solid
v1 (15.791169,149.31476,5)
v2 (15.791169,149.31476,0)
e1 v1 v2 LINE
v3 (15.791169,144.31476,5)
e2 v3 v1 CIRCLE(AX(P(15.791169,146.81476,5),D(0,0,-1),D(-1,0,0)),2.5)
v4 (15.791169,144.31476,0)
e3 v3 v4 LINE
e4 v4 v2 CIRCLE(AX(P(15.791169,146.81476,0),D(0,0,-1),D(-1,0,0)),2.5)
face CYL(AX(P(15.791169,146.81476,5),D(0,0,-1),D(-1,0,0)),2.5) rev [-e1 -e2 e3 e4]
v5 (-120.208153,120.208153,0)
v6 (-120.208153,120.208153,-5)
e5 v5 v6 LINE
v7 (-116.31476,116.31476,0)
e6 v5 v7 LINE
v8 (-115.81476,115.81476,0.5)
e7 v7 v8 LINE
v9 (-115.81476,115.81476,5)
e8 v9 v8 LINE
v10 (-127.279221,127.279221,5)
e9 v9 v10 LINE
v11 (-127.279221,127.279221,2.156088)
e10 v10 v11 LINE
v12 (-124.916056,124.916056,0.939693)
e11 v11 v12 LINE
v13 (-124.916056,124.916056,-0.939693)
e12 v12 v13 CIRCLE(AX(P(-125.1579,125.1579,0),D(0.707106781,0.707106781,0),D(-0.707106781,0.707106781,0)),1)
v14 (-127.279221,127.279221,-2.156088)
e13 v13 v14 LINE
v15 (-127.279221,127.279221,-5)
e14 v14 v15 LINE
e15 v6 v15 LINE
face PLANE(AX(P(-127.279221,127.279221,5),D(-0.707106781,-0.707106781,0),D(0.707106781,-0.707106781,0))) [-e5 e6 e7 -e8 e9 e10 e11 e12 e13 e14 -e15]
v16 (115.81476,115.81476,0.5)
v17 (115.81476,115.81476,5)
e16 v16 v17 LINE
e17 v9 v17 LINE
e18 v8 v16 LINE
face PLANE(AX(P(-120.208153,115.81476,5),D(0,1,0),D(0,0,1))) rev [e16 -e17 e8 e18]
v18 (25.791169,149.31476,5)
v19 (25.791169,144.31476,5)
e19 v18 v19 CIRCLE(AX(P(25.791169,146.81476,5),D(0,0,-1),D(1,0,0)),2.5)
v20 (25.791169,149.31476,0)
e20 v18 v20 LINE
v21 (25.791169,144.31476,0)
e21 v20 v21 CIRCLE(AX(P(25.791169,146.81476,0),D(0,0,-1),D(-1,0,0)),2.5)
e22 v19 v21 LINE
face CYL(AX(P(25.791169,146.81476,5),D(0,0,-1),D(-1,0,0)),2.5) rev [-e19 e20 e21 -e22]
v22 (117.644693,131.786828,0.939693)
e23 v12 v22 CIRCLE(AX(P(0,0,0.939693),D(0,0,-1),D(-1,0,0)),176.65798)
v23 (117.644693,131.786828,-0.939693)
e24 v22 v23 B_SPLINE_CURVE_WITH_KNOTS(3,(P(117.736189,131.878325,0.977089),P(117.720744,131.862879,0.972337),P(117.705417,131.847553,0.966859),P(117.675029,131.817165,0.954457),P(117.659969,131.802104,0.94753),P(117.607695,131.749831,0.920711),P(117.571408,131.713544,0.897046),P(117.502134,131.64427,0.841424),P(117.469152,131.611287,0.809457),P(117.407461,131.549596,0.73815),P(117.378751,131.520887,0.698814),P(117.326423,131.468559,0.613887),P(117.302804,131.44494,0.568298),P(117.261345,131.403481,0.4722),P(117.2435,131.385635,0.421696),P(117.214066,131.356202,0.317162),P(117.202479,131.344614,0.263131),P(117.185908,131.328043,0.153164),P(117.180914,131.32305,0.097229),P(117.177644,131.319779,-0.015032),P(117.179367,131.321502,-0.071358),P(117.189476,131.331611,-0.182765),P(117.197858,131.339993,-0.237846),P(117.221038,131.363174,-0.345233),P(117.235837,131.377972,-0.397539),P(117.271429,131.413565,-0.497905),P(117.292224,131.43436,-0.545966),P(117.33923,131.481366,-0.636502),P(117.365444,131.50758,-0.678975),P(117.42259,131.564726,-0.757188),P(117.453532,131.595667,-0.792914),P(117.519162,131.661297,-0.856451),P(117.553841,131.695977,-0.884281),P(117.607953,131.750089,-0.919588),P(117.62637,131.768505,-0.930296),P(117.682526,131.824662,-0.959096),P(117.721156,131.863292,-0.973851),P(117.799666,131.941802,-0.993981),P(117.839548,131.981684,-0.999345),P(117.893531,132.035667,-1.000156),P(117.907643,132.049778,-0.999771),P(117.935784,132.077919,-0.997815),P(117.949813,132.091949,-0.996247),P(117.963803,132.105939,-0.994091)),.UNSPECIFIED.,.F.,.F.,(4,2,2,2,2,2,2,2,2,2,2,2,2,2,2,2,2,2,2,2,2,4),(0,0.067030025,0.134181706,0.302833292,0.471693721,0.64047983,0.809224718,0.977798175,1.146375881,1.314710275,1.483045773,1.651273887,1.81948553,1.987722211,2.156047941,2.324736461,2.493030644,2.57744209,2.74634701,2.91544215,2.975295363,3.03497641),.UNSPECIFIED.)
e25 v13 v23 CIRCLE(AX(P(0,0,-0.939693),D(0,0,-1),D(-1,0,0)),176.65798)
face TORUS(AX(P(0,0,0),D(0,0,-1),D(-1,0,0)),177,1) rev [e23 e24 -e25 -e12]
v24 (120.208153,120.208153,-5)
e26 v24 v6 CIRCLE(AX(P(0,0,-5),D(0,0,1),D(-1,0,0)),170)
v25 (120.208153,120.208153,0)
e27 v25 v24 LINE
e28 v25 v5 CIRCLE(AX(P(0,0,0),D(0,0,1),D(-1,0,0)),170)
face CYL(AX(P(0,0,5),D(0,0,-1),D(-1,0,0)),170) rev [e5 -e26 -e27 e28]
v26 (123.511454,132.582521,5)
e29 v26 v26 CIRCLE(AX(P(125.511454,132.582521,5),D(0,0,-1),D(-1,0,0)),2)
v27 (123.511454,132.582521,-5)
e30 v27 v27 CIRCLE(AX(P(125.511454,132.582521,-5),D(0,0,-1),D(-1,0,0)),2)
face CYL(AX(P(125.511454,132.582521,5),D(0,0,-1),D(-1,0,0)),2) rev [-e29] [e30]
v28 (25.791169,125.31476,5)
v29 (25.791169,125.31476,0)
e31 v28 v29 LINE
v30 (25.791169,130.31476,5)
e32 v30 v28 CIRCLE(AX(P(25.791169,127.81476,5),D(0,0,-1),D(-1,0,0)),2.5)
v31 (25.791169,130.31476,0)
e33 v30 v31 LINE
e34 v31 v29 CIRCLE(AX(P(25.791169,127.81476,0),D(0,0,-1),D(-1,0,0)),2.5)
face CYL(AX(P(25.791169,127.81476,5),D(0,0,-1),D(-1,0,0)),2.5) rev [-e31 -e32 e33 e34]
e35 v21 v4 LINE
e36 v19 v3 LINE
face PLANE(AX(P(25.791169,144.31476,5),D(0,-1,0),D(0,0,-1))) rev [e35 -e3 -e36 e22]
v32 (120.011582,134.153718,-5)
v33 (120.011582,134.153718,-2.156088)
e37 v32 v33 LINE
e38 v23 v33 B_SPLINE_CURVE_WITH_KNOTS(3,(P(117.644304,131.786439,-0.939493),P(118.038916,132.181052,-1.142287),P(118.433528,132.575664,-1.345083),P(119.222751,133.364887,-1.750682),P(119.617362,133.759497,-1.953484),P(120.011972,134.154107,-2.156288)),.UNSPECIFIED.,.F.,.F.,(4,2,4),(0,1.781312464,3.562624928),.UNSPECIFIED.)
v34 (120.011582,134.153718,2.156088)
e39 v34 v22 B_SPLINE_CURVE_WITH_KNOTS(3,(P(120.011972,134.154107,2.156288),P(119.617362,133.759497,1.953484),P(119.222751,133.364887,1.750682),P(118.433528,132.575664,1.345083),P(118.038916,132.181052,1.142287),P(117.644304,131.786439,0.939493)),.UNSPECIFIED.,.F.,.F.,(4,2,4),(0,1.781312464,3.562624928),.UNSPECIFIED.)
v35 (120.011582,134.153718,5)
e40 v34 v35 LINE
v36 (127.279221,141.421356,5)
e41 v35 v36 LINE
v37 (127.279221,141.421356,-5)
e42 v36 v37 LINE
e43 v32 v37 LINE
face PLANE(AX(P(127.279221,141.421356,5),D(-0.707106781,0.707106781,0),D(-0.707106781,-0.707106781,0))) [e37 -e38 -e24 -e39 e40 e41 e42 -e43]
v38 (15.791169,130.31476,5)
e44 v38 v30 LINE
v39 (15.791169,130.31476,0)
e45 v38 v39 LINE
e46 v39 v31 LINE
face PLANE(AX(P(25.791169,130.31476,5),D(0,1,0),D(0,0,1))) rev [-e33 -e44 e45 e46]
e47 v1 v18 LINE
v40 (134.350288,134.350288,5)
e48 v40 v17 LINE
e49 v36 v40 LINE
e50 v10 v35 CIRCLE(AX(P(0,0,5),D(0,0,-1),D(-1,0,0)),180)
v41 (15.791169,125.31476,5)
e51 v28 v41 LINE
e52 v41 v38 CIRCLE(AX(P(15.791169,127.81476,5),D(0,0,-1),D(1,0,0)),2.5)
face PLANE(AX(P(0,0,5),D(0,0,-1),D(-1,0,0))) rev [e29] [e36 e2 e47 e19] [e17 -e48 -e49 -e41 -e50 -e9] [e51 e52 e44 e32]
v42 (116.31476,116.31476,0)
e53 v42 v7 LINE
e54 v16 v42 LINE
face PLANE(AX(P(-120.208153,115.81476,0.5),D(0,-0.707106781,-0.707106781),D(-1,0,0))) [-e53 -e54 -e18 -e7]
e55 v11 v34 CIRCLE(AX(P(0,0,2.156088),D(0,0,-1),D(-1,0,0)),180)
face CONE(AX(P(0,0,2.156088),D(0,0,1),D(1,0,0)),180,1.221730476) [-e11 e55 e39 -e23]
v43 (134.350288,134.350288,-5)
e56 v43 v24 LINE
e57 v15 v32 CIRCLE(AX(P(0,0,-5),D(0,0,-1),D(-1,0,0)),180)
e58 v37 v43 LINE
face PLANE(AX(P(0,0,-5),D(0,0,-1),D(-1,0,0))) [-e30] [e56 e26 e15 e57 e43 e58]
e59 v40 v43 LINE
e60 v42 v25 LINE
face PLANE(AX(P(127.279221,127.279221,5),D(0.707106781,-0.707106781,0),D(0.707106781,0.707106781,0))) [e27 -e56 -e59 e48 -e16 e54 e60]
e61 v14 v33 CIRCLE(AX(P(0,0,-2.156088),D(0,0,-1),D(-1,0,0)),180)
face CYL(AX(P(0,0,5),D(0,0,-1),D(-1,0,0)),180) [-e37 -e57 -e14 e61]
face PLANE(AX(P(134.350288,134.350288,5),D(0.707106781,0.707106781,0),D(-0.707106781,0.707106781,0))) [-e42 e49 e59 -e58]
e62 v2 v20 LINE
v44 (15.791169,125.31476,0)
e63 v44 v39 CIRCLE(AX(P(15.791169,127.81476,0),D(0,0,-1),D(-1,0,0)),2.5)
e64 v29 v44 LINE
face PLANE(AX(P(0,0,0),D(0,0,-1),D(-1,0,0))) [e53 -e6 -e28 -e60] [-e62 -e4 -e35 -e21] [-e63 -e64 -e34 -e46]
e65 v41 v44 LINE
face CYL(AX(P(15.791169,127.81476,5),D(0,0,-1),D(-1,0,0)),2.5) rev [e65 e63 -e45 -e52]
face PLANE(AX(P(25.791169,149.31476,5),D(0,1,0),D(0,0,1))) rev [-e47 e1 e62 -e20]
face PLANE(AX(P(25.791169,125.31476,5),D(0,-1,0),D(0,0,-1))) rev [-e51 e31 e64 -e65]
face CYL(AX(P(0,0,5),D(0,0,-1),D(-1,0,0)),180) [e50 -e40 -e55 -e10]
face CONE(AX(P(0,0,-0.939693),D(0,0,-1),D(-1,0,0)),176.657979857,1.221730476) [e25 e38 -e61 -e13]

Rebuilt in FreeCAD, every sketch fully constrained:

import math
import FreeCAD as App
import Part
import Sketcher
Q = App.Units.Quantity


def edges_at(feature, points):
    """Names of the edges that pass closest to the given points."""
    edges = feature.Shape.Edges
    near = lambda p: min(range(len(edges)), key=lambda i: edges[i].distToShape(Part.Vertex(*p))[0])
    return sorted({f"Edge{near(p) + 1}" for p in points})

doc = App.newDocument("Part")
body = doc.addObject("PartDesign::Body", "Body")

sketch1 = doc.addObject("Sketcher::SketchObject", "Sketch")
body.addObject(sketch1)
sketch1.AttachmentSupport = (doc.XY_Plane, [""])
sketch1.MapMode = "FlatFace"
sketch1.addGeometry([
    Part.LineSegment(App.Vector(-120.2, 115.8, 0), App.Vector(120.2, 115.8, 0)),
    Part.LineSegment(App.Vector(120.2, 115.8, 0), App.Vector(120.2, 120.2, 0)),
    Part.ArcOfCircle(Part.Circle(App.Vector(0, 0, 0), App.Vector(0, 0, 1), 170), math.radians(45), math.radians(135)),
    Part.LineSegment(App.Vector(-120.2, 120.2, 0), App.Vector(-120.2, 115.8, 0)),
], False)
sketch1.addConstraint([
    Sketcher.Constraint("Coincident", 0, 2, 1, 1),
    Sketcher.Constraint("Coincident", 1, 2, 2, 1),
    Sketcher.Constraint("Coincident", 2, 2, 3, 1),
    Sketcher.Constraint("Coincident", 3, 2, 0, 1),
    Sketcher.Constraint("Horizontal", 0),
    Sketcher.Constraint("Vertical", 1),
    Sketcher.Constraint("Vertical", 3),
    Sketcher.Constraint("Coincident", 2, 3, -1, 1),
    Sketcher.Constraint("Horizontal", 1, 2, 2, 2),
    Sketcher.Constraint("Radius", 2, Q("170 mm")),
    Sketcher.Constraint("DistanceX", 0, 1, 0, 2, Q("240.416306 mm")),
    Sketcher.Constraint("DistanceY", 1, 1, 1, 2, Q("4.393393 mm")),
])
pad1 = doc.addObject("PartDesign::Pad", "Pad")
body.addObject(pad1)
pad1.Profile = sketch1
pad1.Length = 5

sketch2 = doc.addObject("Sketcher::SketchObject", "Sketch001")
body.addObject(sketch2)
sketch2.AttachmentSupport = (doc.XY_Plane, [""])
sketch2.MapMode = "FlatFace"
sketch2.addGeometry([
    Part.LineSegment(App.Vector(-120, 120, 0), App.Vector(-127, 127, 0)),
    Part.ArcOfCircle(Part.Circle(App.Vector(0, 0, 0), App.Vector(0, 0, 1), 180), math.radians(45), math.radians(135)),
    Part.LineSegment(App.Vector(127, 127, 0), App.Vector(120, 120, 0)),
    Part.ArcOfCircle(Part.Circle(App.Vector(0, 0, 0), App.Vector(0, 0, 1), 170), math.radians(45), math.radians(135)),
], False)
sketch2.addConstraint([
    Sketcher.Constraint("Coincident", 0, 2, 1, 2),
    Sketcher.Constraint("Coincident", 1, 1, 2, 1),
    Sketcher.Constraint("Coincident", 2, 2, 3, 1),
    Sketcher.Constraint("Coincident", 3, 2, 0, 1),
    Sketcher.Constraint("Coincident", 1, 3, -1, 1),
    Sketcher.Constraint("Coincident", 3, 3, -1, 1),
    Sketcher.Constraint("Perpendicular", 0, 2),
    Sketcher.Constraint("Horizontal", 0, 2, 1, 1),
    Sketcher.Constraint("Horizontal", 2, 2, 3, 2),
    Sketcher.Constraint("Radius", 1, Q("180 mm")),
    Sketcher.Constraint("Radius", 3, Q("170 mm")),
    Sketcher.Constraint("DistanceX", 0, 2, -1, 1, Q("127.279221 mm")),
])
pad2 = doc.addObject("PartDesign::Pad", "Pad001")
body.addObject(pad2)
pad2.Profile = sketch2
pad2.Type = "TwoLengths"
pad2.Length = 5
pad2.Length2 = 5
pad2.Reversed = True

sketch3 = doc.addObject("Sketcher::SketchObject", "Sketch002")
body.addObject(sketch3)
sketch3.Placement = App.Placement(App.Vector(0, 0, 0), App.Rotation(App.Vector(0, 0, -1), App.Vector(0.707106781, 0.707106781, 0), App.Vector(0.707106781, -0.707106781, 0), "ZXY"))
sketch3.addGeometry([
    Part.LineSegment(App.Vector(-2.2, 180, 0), App.Vector(-0.9, 176.7, 0)),
    Part.ArcOfCircle(Part.Circle(App.Vector(0, 177, 0), App.Vector(0, 0, 1), 1), math.radians(-160), math.radians(-20)),
    Part.LineSegment(App.Vector(0.9, 176.7, 0), App.Vector(2.2, 180, 0)),
    Part.LineSegment(App.Vector(2.2, 180, 0), App.Vector(-2.2, 180, 0)),
], False)
sketch3.addConstraint([
    Sketcher.Constraint("Tangent", 0, 2, 1, 1),
    Sketcher.Constraint("Tangent", 1, 2, 2, 1),
    Sketcher.Constraint("Coincident", 2, 2, 3, 1),
    Sketcher.Constraint("Coincident", 3, 2, 0, 1),
    Sketcher.Constraint("Horizontal", 3),
    Sketcher.Constraint("Symmetric", 0, 2, 1, 2, -2),
    Sketcher.Constraint("Radius", 1, Q("1 mm")),
    Sketcher.Constraint("Angle", 0, Q("-70 deg")),
    Sketcher.Constraint("DistanceY", -1, 1, 1, 3, Q("177 mm")),
    Sketcher.Constraint("DistanceY", -1, 1, 2, 2, Q("180 mm")),
])

sketch4 = doc.addObject("Sketcher::SketchObject", "Sketch003")
body.addObject(sketch4)
sketch4.AttachmentSupport = (doc.XY_Plane, [""])
sketch4.MapMode = "FlatFace"
sketch4.addGeometry(Part.ArcOfCircle(Part.Circle(App.Vector(0, 0, 0), App.Vector(0, 0, 1), 179), math.radians(45), math.radians(135)), False)
sketch4.addConstraint([
    Sketcher.Constraint("Coincident", 0, 3, -1, 1),
    Sketcher.Constraint("Radius", 0, Q("179 mm")),
    Sketcher.Constraint("DistanceX", -1, 1, 0, 1, Q("126.572114 mm")),
    Sketcher.Constraint("DistanceX", 0, 2, -1, 1, Q("126.572114 mm")),
])
doc.recompute()

subtractivepipe = doc.addObject("PartDesign::SubtractivePipe", "SubtractivePipe")
body.addObject(subtractivepipe)
subtractivepipe.Profile = sketch3
subtractivepipe.Spine = (sketch4, ["Edge1"])

sketch5 = doc.addObject("Sketcher::SketchObject", "Sketch004")
body.addObject(sketch5)
sketch5.AttachmentSupport = (doc.XY_Plane, [""])
sketch5.MapMode = "FlatFace"
sketch5.addGeometry([
    Part.LineSegment(App.Vector(134.4, 134.4, 0), App.Vector(123.7, 123.7, 0)),
    Part.LineSegment(App.Vector(123.7, 123.7, 0), App.Vector(116.7, 130.8, 0)),
    Part.LineSegment(App.Vector(116.7, 130.8, 0), App.Vector(127.3, 141.4, 0)),
    Part.LineSegment(App.Vector(127.3, 141.4, 0), App.Vector(134.4, 134.4, 0)),
    Part.Circle(App.Vector(125.5, 132.6, 0), App.Vector(0, 0, 1), 2),
], False)
sketch5.addConstraint([
    Sketcher.Constraint("Coincident", 0, 2, 1, 1),
    Sketcher.Constraint("Coincident", 1, 2, 2, 1),
    Sketcher.Constraint("Coincident", 2, 2, 3, 1),
    Sketcher.Constraint("Coincident", 3, 2, 0, 1),
    Sketcher.Constraint("Perpendicular", 0, 1),
    Sketcher.Constraint("Perpendicular", 1, 2),
    Sketcher.Constraint("Perpendicular", 2, 3),
    Sketcher.Constraint("Diameter", 4, Q("4 mm")),
    Sketcher.Constraint("Angle", 0, Q("-135 deg")),
    Sketcher.Constraint("Distance", 0, Q("15 mm")),
    Sketcher.Constraint("Distance", 1, Q("10 mm")),
    Sketcher.Constraint("DistanceY", -1, 1, 4, 3, Q("132.582521 mm")),
    Sketcher.Constraint("DistanceX", -1, 1, 1, 2, Q("116.672619 mm")),
    Sketcher.Constraint("DistanceY", -1, 1, 3, 2, Q("134.350288 mm")),
    Sketcher.Constraint("DistanceX", -1, 1, 4, 3, Q("125.511454 mm")),
])
pad3 = doc.addObject("PartDesign::Pad", "Pad002")
body.addObject(pad3)
pad3.Profile = sketch5
pad3.Type = "TwoLengths"
pad3.Length = 5
pad3.Length2 = 5
pad3.Reversed = True

sketch6 = doc.addObject("Sketcher::SketchObject", "Sketch005")
body.addObject(sketch6)
sketch6.AttachmentSupport = (doc.XY_Plane, [""])
sketch6.MapMode = "FlatFace"
sketch6.addGeometry([
    Part.LineSegment(App.Vector(105, 105, 0), App.Vector(125, 125, 0)),
    Part.LineSegment(App.Vector(125, 125, 0), App.Vector(145, 110, 0)),
    Part.LineSegment(App.Vector(145, 110, 0), App.Vector(105, 105, 0)),
    Part.LineSegment(App.Vector(-127, 127, 0), App.Vector(-101, 101, 0)),
    Part.LineSegment(App.Vector(-101, 101, 0), App.Vector(-141, 93, 0)),
    Part.LineSegment(App.Vector(-141, 93, 0), App.Vector(-127, 127, 0)),
], False)
sketch6.addConstraint([
    Sketcher.Constraint("Coincident", 0, 2, 1, 1),
    Sketcher.Constraint("Coincident", 1, 2, 2, 1),
    Sketcher.Constraint("Coincident", 2, 2, 0, 1),
    Sketcher.Constraint("Coincident", 3, 2, 4, 1),
    Sketcher.Constraint("Coincident", 4, 2, 5, 1),
    Sketcher.Constraint("Coincident", 5, 2, 3, 1),
    Sketcher.Constraint("Perpendicular", 0, 3),
    Sketcher.Constraint("Angle", 0, Q("45 deg")),
    Sketcher.Constraint("Distance", 2, Q("40.689429 mm")),
    Sketcher.Constraint("Distance", 3, Q("37.52998 mm")),
    Sketcher.Constraint("DistanceX", -1, 1, 0, 2, Q("125.124551 mm")),
    Sketcher.Constraint("DistanceY", -1, 1, 0, 2, Q("125.124551 mm")),
    Sketcher.Constraint("DistanceY", -1, 1, 4, 2, Q("93.246561 mm")),
    Sketcher.Constraint("DistanceX", 5, 2, -1, 1, Q("127.279221 mm")),
    Sketcher.Constraint("DistanceY", -1, 1, 5, 2, Q("127.279221 mm")),
    Sketcher.Constraint("DistanceX", 2, 2, 1, 2, Q("40.39271 mm")),
    Sketcher.Constraint("DistanceY", 3, 2, 2, 2, Q("3.88887 mm")),
    Sketcher.Constraint("DistanceX", 4, 2, 2, 2, Q("245.13823 mm")),
])
pocket1 = doc.addObject("PartDesign::Pocket", "Pocket")
body.addObject(pocket1)
pocket1.Profile = sketch6
pocket1.Type = "ThroughAll"
pocket1.Midplane = True

sketch7 = doc.addObject("Sketcher::SketchObject", "Sketch006")
body.addObject(sketch7)
sketch7.AttachmentSupport = (doc.XY_Plane, [""])
sketch7.MapMode = "FlatFace"
sketch7.addGeometry([
    Part.LineSegment(App.Vector(15.8, 149.3, 0), App.Vector(25.8, 149.3, 0)),
    Part.ArcOfCircle(Part.Circle(App.Vector(25.8, 146.8, 0), App.Vector(0, 0, 1), 2.5), math.radians(-90), math.radians(90)),
    Part.LineSegment(App.Vector(25.8, 144.3, 0), App.Vector(15.8, 144.3, 0)),
    Part.ArcOfCircle(Part.Circle(App.Vector(15.8, 146.8, 0), App.Vector(0, 0, 1), 2.5), math.radians(90), math.radians(270)),
    Part.LineSegment(App.Vector(15.8, 130.3, 0), App.Vector(25.8, 130.3, 0)),
    Part.ArcOfCircle(Part.Circle(App.Vector(25.8, 127.8, 0), App.Vector(0, 0, 1), 2.5), math.radians(-90), math.radians(90)),
    Part.LineSegment(App.Vector(25.8, 125.3, 0), App.Vector(15.8, 125.3, 0)),
    Part.ArcOfCircle(Part.Circle(App.Vector(15.8, 127.8, 0), App.Vector(0, 0, 1), 2.5), math.radians(90), math.radians(270)),
], False)
sketch7.addConstraint([
    Sketcher.Constraint("Tangent", 0, 2, 1, 2),
    Sketcher.Constraint("Tangent", 1, 1, 2, 1),
    Sketcher.Constraint("Tangent", 2, 2, 3, 2),
    Sketcher.Constraint("Tangent", 3, 1, 0, 1),
    Sketcher.Constraint("Tangent", 4, 2, 5, 2),
    Sketcher.Constraint("Tangent", 5, 1, 6, 1),
    Sketcher.Constraint("Tangent", 6, 2, 7, 2),
    Sketcher.Constraint("Tangent", 7, 1, 4, 1),
    Sketcher.Constraint("Horizontal", 0),
    Sketcher.Constraint("Horizontal", 2),
    Sketcher.Constraint("Horizontal", 4),
    Sketcher.Constraint("Horizontal", 6),
    Sketcher.Constraint("Equal", 3, 5),
    Sketcher.Constraint("Vertical", 1, 3, 5, 3),
    Sketcher.Constraint("Vertical", 3, 3, 7, 3),
    Sketcher.Constraint("Radius", 1, Q("2.5 mm")),
    Sketcher.Constraint("DistanceX", 0, 1, 0, 2, Q("10 mm")),
    Sketcher.Constraint("DistanceY", 5, 3, 1, 3, Q("19 mm")),
    Sketcher.Constraint("DistanceX", -1, 1, 1, 3, Q("25.791169 mm")),
    Sketcher.Constraint("DistanceY", -1, 1, 1, 3, Q("146.81476 mm")),
])
pocket2 = doc.addObject("PartDesign::Pocket", "Pocket001")
body.addObject(pocket2)
pocket2.Profile = sketch7
pocket2.Type = "ThroughAll"
pocket2.Midplane = True
doc.recompute()

chamfer = doc.addObject("PartDesign::Chamfer", "Chamfer")
body.addObject(chamfer)
chamfer.Base = (pocket2, edges_at(pocket2, [(0, 115.815, 0)]))
chamfer.Size = 0.5

doc.recompute()
